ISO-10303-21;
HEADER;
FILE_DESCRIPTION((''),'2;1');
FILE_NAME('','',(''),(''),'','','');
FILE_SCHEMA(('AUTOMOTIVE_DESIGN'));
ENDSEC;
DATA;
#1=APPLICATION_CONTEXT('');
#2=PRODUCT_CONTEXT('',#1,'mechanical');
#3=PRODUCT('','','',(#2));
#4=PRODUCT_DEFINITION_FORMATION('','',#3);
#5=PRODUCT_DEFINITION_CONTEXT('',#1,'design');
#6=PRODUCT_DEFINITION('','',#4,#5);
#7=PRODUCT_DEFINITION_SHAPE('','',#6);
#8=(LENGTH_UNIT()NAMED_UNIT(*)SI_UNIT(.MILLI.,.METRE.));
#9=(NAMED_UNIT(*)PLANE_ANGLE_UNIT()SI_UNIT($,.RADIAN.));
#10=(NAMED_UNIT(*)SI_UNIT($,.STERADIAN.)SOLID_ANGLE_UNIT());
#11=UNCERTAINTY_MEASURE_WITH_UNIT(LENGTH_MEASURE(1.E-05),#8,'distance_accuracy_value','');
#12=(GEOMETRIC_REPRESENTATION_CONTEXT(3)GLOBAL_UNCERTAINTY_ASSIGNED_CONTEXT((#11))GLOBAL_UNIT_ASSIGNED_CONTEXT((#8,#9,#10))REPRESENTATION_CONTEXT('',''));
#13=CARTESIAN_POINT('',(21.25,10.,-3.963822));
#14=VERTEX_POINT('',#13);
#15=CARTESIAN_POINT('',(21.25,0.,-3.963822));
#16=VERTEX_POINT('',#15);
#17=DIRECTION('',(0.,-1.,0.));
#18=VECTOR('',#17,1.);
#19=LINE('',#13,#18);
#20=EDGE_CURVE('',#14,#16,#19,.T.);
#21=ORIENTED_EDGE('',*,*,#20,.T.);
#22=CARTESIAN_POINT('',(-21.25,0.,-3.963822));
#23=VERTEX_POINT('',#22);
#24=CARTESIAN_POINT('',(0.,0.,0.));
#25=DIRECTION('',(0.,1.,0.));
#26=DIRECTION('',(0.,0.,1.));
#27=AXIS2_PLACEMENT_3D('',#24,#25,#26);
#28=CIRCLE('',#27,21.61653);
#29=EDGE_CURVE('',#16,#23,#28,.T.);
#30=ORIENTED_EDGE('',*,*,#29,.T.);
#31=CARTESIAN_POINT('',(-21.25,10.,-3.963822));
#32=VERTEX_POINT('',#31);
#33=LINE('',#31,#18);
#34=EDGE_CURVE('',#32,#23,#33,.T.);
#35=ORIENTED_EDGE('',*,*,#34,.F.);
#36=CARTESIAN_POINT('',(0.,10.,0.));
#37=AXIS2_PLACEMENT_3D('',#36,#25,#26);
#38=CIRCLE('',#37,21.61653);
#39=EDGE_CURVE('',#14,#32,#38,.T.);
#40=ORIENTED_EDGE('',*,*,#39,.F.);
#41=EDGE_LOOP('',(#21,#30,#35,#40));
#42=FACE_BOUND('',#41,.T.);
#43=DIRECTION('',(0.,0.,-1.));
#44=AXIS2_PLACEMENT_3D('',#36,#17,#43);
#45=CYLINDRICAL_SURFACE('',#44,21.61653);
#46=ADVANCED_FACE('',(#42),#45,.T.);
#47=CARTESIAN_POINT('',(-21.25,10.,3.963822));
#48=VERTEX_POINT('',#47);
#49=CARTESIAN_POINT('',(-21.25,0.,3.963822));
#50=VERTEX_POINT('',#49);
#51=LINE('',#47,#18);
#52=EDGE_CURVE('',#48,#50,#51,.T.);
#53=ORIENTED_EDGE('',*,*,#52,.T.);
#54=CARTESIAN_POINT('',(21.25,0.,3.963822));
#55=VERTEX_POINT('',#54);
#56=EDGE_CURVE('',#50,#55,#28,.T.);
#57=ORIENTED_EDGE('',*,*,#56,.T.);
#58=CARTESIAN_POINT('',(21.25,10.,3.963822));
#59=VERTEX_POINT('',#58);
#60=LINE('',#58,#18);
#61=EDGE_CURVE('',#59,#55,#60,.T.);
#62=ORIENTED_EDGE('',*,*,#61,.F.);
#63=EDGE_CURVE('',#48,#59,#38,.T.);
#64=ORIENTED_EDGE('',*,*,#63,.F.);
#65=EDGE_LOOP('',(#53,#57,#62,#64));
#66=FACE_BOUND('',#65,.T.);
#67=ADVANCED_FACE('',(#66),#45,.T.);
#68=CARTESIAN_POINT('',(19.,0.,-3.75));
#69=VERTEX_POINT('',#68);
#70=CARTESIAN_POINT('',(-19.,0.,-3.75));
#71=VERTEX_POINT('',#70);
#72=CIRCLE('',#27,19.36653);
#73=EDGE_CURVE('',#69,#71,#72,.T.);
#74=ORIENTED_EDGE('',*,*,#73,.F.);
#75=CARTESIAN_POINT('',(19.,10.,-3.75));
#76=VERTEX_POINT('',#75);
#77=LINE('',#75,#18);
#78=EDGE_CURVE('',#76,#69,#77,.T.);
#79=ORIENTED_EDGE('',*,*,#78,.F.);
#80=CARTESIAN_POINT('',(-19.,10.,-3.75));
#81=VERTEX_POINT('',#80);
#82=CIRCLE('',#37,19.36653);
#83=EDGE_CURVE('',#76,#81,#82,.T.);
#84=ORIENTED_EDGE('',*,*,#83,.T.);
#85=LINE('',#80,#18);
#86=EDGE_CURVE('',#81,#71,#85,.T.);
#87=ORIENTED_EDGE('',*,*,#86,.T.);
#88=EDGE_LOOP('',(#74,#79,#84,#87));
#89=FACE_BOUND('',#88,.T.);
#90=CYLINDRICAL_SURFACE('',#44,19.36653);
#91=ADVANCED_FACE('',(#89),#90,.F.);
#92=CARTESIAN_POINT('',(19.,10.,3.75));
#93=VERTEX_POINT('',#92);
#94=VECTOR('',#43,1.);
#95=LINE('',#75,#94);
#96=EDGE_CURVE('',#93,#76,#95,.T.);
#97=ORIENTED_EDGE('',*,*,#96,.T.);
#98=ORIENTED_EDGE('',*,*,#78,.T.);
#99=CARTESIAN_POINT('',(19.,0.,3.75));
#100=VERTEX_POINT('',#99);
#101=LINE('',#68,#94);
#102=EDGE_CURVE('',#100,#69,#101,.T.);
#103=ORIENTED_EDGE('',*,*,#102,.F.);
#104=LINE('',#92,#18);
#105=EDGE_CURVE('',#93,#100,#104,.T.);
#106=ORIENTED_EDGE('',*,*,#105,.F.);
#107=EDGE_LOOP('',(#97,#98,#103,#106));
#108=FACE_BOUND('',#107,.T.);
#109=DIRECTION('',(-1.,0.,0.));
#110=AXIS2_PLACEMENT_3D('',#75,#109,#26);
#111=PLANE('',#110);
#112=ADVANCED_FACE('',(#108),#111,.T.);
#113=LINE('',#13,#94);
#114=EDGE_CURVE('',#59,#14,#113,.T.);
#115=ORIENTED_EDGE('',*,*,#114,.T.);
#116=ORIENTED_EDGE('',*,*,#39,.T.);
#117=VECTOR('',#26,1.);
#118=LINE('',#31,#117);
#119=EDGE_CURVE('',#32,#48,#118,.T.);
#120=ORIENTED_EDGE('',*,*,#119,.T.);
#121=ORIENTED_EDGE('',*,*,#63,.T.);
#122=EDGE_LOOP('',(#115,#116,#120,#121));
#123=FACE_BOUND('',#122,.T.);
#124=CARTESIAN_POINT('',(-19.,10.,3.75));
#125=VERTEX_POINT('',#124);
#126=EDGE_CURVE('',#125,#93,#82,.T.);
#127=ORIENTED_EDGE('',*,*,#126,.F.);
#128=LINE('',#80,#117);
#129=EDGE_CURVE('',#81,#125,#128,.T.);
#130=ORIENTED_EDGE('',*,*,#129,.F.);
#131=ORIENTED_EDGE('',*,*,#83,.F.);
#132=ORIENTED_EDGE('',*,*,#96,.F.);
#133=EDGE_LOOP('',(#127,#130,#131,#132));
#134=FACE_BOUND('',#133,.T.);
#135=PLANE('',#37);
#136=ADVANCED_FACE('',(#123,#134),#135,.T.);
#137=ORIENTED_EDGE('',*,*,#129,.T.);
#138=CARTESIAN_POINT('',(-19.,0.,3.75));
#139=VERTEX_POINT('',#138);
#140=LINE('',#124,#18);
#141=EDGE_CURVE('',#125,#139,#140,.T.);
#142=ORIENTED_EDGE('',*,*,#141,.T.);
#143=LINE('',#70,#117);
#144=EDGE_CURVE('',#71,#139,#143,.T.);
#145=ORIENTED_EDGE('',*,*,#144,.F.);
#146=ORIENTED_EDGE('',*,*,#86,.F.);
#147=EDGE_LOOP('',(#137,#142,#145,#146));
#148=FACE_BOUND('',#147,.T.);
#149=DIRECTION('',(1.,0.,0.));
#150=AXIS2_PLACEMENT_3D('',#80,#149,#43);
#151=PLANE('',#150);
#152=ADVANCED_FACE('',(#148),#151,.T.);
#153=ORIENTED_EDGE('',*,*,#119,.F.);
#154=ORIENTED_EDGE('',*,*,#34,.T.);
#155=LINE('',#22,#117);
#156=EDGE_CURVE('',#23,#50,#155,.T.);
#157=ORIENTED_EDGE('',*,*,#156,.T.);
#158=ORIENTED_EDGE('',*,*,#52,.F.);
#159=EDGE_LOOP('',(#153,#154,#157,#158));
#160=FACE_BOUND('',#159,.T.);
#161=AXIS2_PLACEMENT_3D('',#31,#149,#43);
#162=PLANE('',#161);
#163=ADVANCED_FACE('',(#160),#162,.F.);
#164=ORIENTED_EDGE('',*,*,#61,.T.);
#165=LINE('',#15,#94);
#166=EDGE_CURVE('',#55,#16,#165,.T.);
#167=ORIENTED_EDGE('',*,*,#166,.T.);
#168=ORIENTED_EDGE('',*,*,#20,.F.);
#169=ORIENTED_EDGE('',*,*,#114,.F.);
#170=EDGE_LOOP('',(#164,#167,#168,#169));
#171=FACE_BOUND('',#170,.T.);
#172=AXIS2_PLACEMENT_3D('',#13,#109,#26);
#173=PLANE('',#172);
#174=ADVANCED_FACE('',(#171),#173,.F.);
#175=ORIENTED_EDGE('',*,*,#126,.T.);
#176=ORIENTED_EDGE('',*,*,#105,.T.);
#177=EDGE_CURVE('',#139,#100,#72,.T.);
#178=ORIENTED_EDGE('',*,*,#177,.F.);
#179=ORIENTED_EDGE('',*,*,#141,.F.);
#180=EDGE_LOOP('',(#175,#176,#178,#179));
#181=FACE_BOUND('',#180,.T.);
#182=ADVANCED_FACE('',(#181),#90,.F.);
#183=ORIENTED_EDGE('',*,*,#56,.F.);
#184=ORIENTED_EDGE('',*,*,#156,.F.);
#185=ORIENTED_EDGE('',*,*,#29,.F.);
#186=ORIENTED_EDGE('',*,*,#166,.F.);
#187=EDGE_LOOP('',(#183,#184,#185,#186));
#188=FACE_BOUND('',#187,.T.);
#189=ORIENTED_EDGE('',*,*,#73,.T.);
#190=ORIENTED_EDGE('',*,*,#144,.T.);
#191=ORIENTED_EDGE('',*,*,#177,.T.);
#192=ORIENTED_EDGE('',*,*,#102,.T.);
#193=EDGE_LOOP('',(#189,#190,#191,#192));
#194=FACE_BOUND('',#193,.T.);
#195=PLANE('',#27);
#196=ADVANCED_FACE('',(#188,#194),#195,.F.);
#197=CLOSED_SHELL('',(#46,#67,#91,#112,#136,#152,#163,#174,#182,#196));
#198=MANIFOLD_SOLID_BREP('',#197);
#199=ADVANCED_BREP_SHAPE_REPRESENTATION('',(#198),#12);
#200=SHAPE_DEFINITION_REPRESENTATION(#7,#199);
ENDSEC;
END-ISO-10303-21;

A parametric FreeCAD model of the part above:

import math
import FreeCAD as App
import Part
import Sketcher
from FreeCAD import Vector
Q = App.Units.Quantity

doc = App.newDocument("Part")
body = doc.addObject("PartDesign::Body", "Body")

# Sketch on XZ plane
sketch1 = body.newObject("Sketcher::SketchObject", "Sketch")
sketch1.AttachmentSupport = (doc.getObject("XZ_Plane"), [""])
sketch1.MapMode = "FlatFace"
sketch1.addGeometry(Part.LineSegment(Vector(-21, -4, 0), Vector(-21, 4, 0)), False)
sketch1.addGeometry(Part.ArcOfCircle(Part.Circle(Vector(0, 0, 0), Vector(0, 0, 1), 22), math.radians(11), math.radians(169)), False)
sketch1.addGeometry(Part.LineSegment(Vector(21, 4, 0), Vector(21, -4, 0)), False)
sketch1.addGeometry(Part.ArcOfCircle(Part.Circle(Vector(0, 0, 0), Vector(0, 0, 1), 22), math.radians(-169), math.radians(-11)), False)
sketch1.addGeometry(Part.ArcOfCircle(Part.Circle(Vector(0, 0, 0), Vector(0, 0, 1), 19), math.radians(-169), math.radians(-11)), False)
sketch1.addGeometry(Part.LineSegment(Vector(19, -4, 0), Vector(19, 4, 0)), False)
sketch1.addGeometry(Part.ArcOfCircle(Part.Circle(Vector(0, 0, 0), Vector(0, 0, 1), 19), math.radians(11), math.radians(169)), False)
sketch1.addGeometry(Part.LineSegment(Vector(-19, 4, 0), Vector(-19, -4, 0)), False)
sketch1.addConstraint(Sketcher.Constraint("Coincident", 0, 2, 1, 2))
sketch1.addConstraint(Sketcher.Constraint("Coincident", 1, 1, 2, 1))
sketch1.addConstraint(Sketcher.Constraint("Coincident", 2, 2, 3, 2))
sketch1.addConstraint(Sketcher.Constraint("Coincident", 3, 1, 0, 1))
sketch1.addConstraint(Sketcher.Constraint("Coincident", 4, 2, 5, 1))
sketch1.addConstraint(Sketcher.Constraint("Coincident", 5, 2, 6, 1))
sketch1.addConstraint(Sketcher.Constraint("Coincident", 6, 2, 7, 1))
sketch1.addConstraint(Sketcher.Constraint("Coincident", 7, 2, 4, 1))
sketch1.addConstraint(Sketcher.Constraint("Vertical", 0))
sketch1.addConstraint(Sketcher.Constraint("Vertical", 2))
sketch1.addConstraint(Sketcher.Constraint("Vertical", 5))
sketch1.addConstraint(Sketcher.Constraint("Vertical", 7))
sketch1.addConstraint(Sketcher.Constraint("Coincident", 1, 3, -1, 1))
sketch1.addConstraint(Sketcher.Constraint("Coincident", 3, 3, -1, 1))
sketch1.addConstraint(Sketcher.Constraint("Coincident", 4, 3, -1, 1))
sketch1.addConstraint(Sketcher.Constraint("Coincident", 6, 3, -1, 1))
sketch1.addConstraint(Sketcher.Constraint("Equal", 1, 3))
sketch1.addConstraint(Sketcher.Constraint("Equal", 4, 6))
sketch1.addConstraint(Sketcher.Constraint("Horizontal", 0, 2, 1, 1))
sketch1.addConstraint(Sketcher.Constraint("Horizontal", 5, 2, 6, 2))
sketch1.addConstraint(Sketcher.Constraint("DistanceY", 5, 1, 5, 2, Q("7.5 mm")))
sketch1.addConstraint(Sketcher.Constraint("DistanceX", -1, 1, 4, 2, Q("19 mm")))
sketch1.addConstraint(Sketcher.Constraint("DistanceX", 0, 2, 1, 1, Q("42.5 mm")))
sketch1.addConstraint(Sketcher.Constraint("Radius", 1, Q("21.61653 mm")))
pad1 = body.newObject("PartDesign::Pad", "Pad")
pad1.Profile = sketch1
pad1.Length = 10
pad1.Reversed = True

doc.recompute()
